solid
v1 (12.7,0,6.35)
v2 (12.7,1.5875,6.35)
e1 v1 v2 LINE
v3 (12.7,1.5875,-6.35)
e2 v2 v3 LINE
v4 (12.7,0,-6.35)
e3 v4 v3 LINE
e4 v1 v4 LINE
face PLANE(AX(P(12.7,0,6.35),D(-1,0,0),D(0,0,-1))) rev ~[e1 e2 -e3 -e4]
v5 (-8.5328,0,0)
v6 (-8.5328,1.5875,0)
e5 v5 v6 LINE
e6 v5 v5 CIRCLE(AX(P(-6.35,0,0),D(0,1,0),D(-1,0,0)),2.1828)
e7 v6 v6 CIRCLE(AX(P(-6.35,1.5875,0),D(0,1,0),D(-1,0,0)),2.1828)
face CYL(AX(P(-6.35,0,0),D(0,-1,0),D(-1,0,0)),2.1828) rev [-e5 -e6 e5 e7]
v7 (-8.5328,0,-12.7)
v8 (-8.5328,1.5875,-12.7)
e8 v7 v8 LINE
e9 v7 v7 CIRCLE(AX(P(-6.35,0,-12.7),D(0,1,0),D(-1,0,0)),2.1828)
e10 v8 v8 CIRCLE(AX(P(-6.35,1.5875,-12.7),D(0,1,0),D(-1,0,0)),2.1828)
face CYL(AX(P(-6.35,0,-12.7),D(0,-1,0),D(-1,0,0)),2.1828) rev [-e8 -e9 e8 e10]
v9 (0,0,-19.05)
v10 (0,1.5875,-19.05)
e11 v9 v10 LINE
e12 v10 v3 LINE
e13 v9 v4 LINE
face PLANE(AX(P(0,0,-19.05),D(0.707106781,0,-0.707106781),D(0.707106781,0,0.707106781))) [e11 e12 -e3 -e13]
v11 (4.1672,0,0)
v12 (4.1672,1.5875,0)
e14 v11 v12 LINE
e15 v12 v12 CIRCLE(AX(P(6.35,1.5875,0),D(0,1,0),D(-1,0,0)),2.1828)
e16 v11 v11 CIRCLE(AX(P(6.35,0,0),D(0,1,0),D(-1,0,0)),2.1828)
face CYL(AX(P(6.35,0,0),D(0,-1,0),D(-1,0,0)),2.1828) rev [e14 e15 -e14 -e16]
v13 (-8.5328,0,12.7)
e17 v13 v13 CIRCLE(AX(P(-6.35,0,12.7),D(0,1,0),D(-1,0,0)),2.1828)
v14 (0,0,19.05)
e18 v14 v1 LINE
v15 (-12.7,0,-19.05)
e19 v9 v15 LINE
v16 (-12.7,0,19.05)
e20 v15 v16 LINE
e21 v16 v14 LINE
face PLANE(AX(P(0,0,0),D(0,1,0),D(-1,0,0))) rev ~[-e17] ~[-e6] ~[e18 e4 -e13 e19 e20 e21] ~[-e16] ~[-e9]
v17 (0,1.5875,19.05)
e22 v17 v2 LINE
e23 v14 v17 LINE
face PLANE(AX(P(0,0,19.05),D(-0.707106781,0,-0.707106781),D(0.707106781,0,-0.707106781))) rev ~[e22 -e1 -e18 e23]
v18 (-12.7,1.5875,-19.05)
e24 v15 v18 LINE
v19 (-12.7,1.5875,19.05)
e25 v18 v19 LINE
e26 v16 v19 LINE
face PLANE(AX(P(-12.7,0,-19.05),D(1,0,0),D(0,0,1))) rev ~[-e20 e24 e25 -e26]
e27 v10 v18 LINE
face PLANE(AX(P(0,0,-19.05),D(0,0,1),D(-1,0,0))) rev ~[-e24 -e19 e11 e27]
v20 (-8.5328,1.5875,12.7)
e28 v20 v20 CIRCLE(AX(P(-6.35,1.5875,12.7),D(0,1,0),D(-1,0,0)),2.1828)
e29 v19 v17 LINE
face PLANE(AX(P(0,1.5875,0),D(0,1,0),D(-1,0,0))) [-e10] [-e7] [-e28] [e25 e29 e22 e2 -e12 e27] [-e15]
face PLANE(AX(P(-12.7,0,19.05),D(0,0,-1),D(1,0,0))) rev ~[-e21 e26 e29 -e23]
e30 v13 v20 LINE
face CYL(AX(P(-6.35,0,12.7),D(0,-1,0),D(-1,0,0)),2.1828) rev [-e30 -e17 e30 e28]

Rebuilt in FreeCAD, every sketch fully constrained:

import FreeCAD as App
import Part
import Sketcher
from FreeCAD import Vector
Q = App.Units.Quantity

doc = App.newDocument("Part")
body = doc.addObject("PartDesign::Body", "Body")

sketch1 = body.newObject("Sketcher::SketchObject", "Sketch")
sketch1.AttachmentSupport = (doc.getObject("XZ_Plane"), [""])
sketch1.MapMode = "FlatFace"
sketch1.addGeometry(Part.LineSegment(Vector(-12.7, 19.1, 0), Vector(0, 19.1, 0)), False)
sketch1.addGeometry(Part.LineSegment(Vector(0, 19.1, 0), Vector(12.7, 6.3, 0)), False)
sketch1.addGeometry(Part.LineSegment(Vector(12.7, 6.3, 0), Vector(12.7, -6.3, 0)), False)
sketch1.addGeometry(Part.LineSegment(Vector(12.7, -6.3, 0), Vector(0, -19.1, 0)), False)
sketch1.addGeometry(Part.LineSegment(Vector(0, -19.1, 0), Vector(-12.7, -19.1, 0)), False)
sketch1.addGeometry(Part.LineSegment(Vector(-12.7, -19.1, 0), Vector(-12.7, 19.1, 0)), False)
sketch1.addGeometry(Part.Circle(Vector(-6.3, -12.7, 0), Vector(0, 0, 1), 2.2), False)
sketch1.addGeometry(Part.Circle(Vector(-6.3, 0, 0), Vector(0, 0, 1), 2.2), False)
sketch1.addGeometry(Part.Circle(Vector(-6.3, 12.7, 0), Vector(0, 0, 1), 2.2), False)
sketch1.addGeometry(Part.Circle(Vector(6.3, 0, 0), Vector(0, 0, 1), 2.2), False)
sketch1.addConstraint(Sketcher.Constraint("Coincident", 0, 2, 1, 1))
sketch1.addConstraint(Sketcher.Constraint("Coincident", 1, 2, 2, 1))
sketch1.addConstraint(Sketcher.Constraint("Coincident", 2, 2, 3, 1))
sketch1.addConstraint(Sketcher.Constraint("Coincident", 3, 2, 4, 1))
sketch1.addConstraint(Sketcher.Constraint("Coincident", 4, 2, 5, 1))
sketch1.addConstraint(Sketcher.Constraint("Coincident", 5, 2, 0, 1))
sketch1.addConstraint(Sketcher.Constraint("Horizontal", 0))
sketch1.addConstraint(Sketcher.Constraint("Vertical", 2))
sketch1.addConstraint(Sketcher.Constraint("Horizontal", 4))
sketch1.addConstraint(Sketcher.Constraint("Vertical", 5))
sketch1.addConstraint(Sketcher.Constraint("Equal", 6, 7))
sketch1.addConstraint(Sketcher.Constraint("Equal", 7, 8))
sketch1.addConstraint(Sketcher.Constraint("Equal", 8, 9))
sketch1.addConstraint(Sketcher.Constraint("Symmetric", 7, 3, 9, 3, -1, 1))
sketch1.addConstraint(Sketcher.Constraint("Symmetric", 0, 2, 3, 2, -1, 1))
sketch1.addConstraint(Sketcher.Constraint("Symmetric", 6, 3, 8, 3, -1))
sketch1.addConstraint(Sketcher.Constraint("PointOnObject", 7, 3, -1))
sketch1.addConstraint(Sketcher.Constraint("PointOnObject", 0, 2, -2))
sketch1.addConstraint(Sketcher.Constraint("Perpendicular", 1, 3))
sketch1.addConstraint(Sketcher.Constraint("Vertical", 6, 3, 7, 3))
sketch1.addConstraint(Sketcher.Constraint("Equal", 4, 2))
sketch1.addConstraint(Sketcher.Constraint("Equal", 1, 3))
sketch1.addConstraint(Sketcher.Constraint("Diameter", 6, Q("0.171874 in")))
sketch1.addConstraint(Sketcher.Constraint("DistanceX", 0, 1, 0, 2, Q("0.5 in")))
sketch1.addConstraint(Sketcher.Constraint("DistanceY", 5, 1, 5, 2, Q("1.5 in")))
sketch1.addConstraint(Sketcher.Constraint("DistanceY", 6, 3, 8, 3, Q("1 in")))
sketch1.addConstraint(Sketcher.Constraint("DistanceX", 7, 3, 9, 3, Q("0.5 in")))
pad1 = body.newObject("PartDesign::Pad", "Pad")
pad1.Profile = sketch1
pad1.Length = Q("0.0625 in")
pad1.Reversed = True

doc.recompute()
